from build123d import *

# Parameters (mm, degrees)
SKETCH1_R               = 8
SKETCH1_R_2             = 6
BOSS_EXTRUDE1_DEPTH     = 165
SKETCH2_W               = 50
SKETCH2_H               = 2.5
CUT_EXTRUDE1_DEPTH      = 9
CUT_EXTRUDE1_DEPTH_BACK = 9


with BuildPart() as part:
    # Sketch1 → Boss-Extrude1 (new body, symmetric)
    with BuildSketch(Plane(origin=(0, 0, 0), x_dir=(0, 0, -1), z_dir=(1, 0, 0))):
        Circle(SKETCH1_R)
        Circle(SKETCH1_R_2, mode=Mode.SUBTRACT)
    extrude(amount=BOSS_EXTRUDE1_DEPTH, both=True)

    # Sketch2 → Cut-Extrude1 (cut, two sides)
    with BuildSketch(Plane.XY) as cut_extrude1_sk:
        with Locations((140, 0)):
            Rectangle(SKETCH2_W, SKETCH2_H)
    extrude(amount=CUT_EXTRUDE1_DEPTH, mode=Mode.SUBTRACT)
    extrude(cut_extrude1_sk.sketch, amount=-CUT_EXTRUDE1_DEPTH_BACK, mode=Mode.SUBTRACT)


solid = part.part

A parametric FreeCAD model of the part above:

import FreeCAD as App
import Part
import Sketcher
from FreeCAD import Vector


def add_polygon(sketch, points):
    """Adds a closed chain of lines whose ends are joined by coincident constraints."""
    first, n = sketch.GeometryCount, len(points)
    for a, b in zip(points, points[1:] + points[:1]):
        sketch.addGeometry(Part.LineSegment(App.Vector(*a, 0), App.Vector(*b, 0)), False)
    for i in range(n):
        sketch.addConstraint(Sketcher.Constraint("Coincident", first + i, 2, first + (i + 1) % n, 1))

doc = App.newDocument("Part")
body = doc.addObject("PartDesign::Body", "Body")

sketch1 = body.newObject("Sketcher::SketchObject", "Sketch")
sketch1.AttachmentSupport = (doc.getObject("YZ_Plane"), [""])
sketch1.MapMode = "FlatFace"
sketch1.addGeometry([
    Part.Circle(Vector(0, 0, 0), Vector(0, 0, 1), 8),
    Part.Circle(Vector(0, 0, 0), Vector(0, 0, 1), 6),
], False)
sketch1.addConstraint([
    Sketcher.Constraint("Coincident", 0, 3, -1, 1),
    Sketcher.Constraint("Coincident", 1, 3, -1, 1),
    Sketcher.Constraint("Diameter", 0, 16.0),
    Sketcher.Constraint("Diameter", 1, 12.0),
])
pad1 = body.newObject("PartDesign::Pad", "Pad")
pad1.Profile = sketch1
pad1.Length = 330
pad1.Midplane = True

sketch2 = body.newObject("Sketcher::SketchObject", "Sketch001")
sketch2.AttachmentSupport = (doc.getObject("XY_Plane"), [""])
sketch2.MapMode = "FlatFace"
add_polygon(sketch2, [(115, 1.25), (115, -1.25), (165, -1.25), (165, 1.25)])
sketch2.addConstraint([
    Sketcher.Constraint("Vertical", 0),
    Sketcher.Constraint("Horizontal", 1),
    Sketcher.Constraint("Vertical", 2),
    Sketcher.Constraint("Horizontal", 3),
    Sketcher.Constraint("DistanceX", 1, 1, 1, 2, 50.0),
    Sketcher.Constraint("DistanceY", 0, 2, 0, 1, 2.5),
    Sketcher.Constraint("DistanceX", -1, 1, 0, 2, 115.0),
    Sketcher.Constraint("DistanceY", 0, 2, -1, 1, 1.25),
])
pocket1 = body.newObject("PartDesign::Pocket", "Pocket")
pocket1.Profile = sketch2
pocket1.Type = "ThroughAll"
pocket1.Midplane = True

doc.recompute()
